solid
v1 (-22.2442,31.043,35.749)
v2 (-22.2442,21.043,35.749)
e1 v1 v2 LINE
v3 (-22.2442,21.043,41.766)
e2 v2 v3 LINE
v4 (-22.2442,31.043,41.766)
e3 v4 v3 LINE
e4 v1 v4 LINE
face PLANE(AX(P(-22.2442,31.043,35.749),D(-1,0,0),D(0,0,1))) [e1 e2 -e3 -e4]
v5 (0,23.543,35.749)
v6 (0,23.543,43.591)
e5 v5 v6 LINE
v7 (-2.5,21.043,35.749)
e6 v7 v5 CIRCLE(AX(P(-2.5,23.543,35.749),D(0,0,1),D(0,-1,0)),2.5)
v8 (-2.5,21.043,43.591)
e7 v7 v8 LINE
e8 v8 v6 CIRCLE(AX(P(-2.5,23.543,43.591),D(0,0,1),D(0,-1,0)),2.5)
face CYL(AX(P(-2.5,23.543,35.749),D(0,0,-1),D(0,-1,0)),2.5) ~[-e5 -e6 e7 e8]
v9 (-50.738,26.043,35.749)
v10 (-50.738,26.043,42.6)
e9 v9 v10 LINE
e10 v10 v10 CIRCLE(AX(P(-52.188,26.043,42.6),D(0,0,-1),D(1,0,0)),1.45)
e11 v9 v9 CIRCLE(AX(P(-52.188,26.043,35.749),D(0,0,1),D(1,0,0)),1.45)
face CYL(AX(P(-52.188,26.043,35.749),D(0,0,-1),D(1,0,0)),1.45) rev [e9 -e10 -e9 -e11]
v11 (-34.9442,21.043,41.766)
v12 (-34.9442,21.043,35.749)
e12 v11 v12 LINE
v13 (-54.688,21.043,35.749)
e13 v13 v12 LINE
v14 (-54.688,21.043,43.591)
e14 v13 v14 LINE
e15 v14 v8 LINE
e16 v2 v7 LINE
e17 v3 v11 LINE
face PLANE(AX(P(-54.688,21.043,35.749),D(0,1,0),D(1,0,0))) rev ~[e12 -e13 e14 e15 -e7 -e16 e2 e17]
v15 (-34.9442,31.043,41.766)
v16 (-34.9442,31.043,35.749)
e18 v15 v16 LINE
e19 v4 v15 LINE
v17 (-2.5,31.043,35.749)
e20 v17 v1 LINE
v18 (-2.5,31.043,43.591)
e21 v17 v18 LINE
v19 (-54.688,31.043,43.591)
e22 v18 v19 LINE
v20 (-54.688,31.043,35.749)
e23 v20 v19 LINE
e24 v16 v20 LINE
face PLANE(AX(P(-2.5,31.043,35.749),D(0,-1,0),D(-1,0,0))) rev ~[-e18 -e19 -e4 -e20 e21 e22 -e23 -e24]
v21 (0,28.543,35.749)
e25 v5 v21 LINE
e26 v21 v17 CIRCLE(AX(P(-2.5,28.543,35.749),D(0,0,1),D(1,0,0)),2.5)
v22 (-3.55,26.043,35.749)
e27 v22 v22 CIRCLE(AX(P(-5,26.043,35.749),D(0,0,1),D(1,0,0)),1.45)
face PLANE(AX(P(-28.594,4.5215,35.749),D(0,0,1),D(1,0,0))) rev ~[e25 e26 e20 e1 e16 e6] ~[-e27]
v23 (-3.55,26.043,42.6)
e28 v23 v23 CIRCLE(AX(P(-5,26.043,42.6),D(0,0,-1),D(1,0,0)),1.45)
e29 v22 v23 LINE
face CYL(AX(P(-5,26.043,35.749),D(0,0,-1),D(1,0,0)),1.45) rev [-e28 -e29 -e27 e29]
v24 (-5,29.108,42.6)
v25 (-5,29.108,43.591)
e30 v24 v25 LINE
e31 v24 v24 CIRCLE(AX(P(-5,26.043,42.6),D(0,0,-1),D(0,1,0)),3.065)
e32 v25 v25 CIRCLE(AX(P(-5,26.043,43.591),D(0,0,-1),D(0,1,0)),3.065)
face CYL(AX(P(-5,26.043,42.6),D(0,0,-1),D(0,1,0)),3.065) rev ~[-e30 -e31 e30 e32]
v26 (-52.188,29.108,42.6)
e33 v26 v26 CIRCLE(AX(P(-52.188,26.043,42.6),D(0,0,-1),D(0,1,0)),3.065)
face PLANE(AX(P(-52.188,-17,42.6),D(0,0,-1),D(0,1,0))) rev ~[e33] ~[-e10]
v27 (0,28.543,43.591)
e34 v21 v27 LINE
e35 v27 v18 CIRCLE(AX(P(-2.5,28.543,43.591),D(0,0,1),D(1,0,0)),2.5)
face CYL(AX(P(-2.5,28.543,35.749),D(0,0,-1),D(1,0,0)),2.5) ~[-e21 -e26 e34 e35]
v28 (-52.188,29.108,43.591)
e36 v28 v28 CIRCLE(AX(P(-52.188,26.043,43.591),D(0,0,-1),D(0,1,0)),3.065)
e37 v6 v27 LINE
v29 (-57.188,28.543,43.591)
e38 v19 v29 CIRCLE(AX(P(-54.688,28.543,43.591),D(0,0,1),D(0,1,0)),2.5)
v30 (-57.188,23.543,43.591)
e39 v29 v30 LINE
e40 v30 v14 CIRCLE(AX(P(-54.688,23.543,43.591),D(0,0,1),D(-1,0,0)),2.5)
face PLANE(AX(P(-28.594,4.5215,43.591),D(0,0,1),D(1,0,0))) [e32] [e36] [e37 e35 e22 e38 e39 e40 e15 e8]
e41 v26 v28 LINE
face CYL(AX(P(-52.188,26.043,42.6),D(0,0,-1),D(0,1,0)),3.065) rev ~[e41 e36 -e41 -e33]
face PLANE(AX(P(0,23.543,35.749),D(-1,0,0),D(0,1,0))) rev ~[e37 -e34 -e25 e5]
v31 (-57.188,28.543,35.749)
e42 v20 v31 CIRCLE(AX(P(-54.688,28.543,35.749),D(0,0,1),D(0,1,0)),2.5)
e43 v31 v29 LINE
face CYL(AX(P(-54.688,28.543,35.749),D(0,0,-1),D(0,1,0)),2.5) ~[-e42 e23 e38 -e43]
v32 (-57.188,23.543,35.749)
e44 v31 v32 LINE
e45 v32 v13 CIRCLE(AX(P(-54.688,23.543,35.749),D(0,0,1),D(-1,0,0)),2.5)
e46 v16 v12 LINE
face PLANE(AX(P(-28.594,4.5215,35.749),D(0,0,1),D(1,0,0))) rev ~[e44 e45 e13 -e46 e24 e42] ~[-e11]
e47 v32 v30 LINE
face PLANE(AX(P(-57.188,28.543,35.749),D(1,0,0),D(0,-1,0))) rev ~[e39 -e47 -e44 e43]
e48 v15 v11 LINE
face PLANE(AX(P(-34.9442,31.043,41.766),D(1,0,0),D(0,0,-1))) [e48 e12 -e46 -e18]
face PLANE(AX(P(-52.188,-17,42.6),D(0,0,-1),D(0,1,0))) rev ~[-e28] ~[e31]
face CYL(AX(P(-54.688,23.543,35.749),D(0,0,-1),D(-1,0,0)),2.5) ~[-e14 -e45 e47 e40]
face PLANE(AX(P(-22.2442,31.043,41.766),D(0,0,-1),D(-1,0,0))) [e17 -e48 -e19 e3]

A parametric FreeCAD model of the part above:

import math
import FreeCAD as App
import Part
import Sketcher
Q = App.Units.Quantity


def add_polygon(sketch, points):
    """Adds a closed chain of lines whose ends are joined by coincident constraints."""
    first, n = sketch.GeometryCount, len(points)
    for a, b in zip(points, points[1:] + points[:1]):
        sketch.addGeometry(Part.LineSegment(App.Vector(*a, 0), App.Vector(*b, 0)), False)
    for i in range(n):
        sketch.addConstraint(Sketcher.Constraint("Coincident", first + i, 2, first + (i + 1) % n, 1))

doc = App.newDocument("Part")
body = doc.addObject("PartDesign::Body", "Body")

sketch1 = body.newObject("Sketcher::SketchObject", "Sketch")
sketch1.AttachmentSupport = (doc.getObject("XY_Plane"), [""])
sketch1.MapMode = "FlatFace"
sketch1.AttachmentOffset = App.Placement(App.Vector(0, 0, 35.749), App.Rotation())
sketch1.addGeometry([
    Part.LineSegment(App.Vector(-2.5, 31, 0), App.Vector(-54.7, 31, 0)),
    Part.ArcOfCircle(Part.Circle(App.Vector(-54.7, 28.5, 0), App.Vector(0, 0, 1), 2.5), math.radians(90), math.radians(180)),
    Part.LineSegment(App.Vector(-57.2, 28.5, 0), App.Vector(-57.2, 23.5, 0)),
    Part.ArcOfCircle(Part.Circle(App.Vector(-54.7, 23.5, 0), App.Vector(0, 0, 1), 2.5), math.radians(180), math.radians(270)),
    Part.LineSegment(App.Vector(-54.7, 21, 0), App.Vector(-2.5, 21, 0)),
    Part.ArcOfCircle(Part.Circle(App.Vector(-2.5, 23.5, 0), App.Vector(0, 0, 1), 2.5), math.radians(-90), math.radians(0)),
    Part.LineSegment(App.Vector(0, 23.5, 0), App.Vector(0, 28.5, 0)),
    Part.ArcOfCircle(Part.Circle(App.Vector(-2.5, 28.5, 0), App.Vector(0, 0, 1), 2.5), math.radians(0), math.radians(90)),
    Part.Circle(App.Vector(-52.2, 26, 0), App.Vector(0, 0, 1), 1.4),
    Part.Circle(App.Vector(-5, 26, 0), App.Vector(0, 0, 1), 1.4),
], False)
sketch1.addConstraint([
    Sketcher.Constraint("Tangent", 0, 2, 1, 1),
    Sketcher.Constraint("Tangent", 1, 2, 2, 1),
    Sketcher.Constraint("Tangent", 2, 2, 3, 1),
    Sketcher.Constraint("Tangent", 3, 2, 4, 1),
    Sketcher.Constraint("Tangent", 4, 2, 5, 1),
    Sketcher.Constraint("Tangent", 5, 2, 6, 1),
    Sketcher.Constraint("Tangent", 6, 2, 7, 1),
    Sketcher.Constraint("Tangent", 7, 2, 0, 1),
    Sketcher.Constraint("Horizontal", 0),
    Sketcher.Constraint("Vertical", 2),
    Sketcher.Constraint("Horizontal", 4),
    Sketcher.Constraint("Vertical", 6),
    Sketcher.Constraint("Equal", 1, 3),
    Sketcher.Constraint("Equal", 3, 5),
    Sketcher.Constraint("Equal", 5, 7),
    Sketcher.Constraint("Equal", 8, 9),
    Sketcher.Constraint("PointOnObject", 5, 2, -2),
    Sketcher.Constraint("Horizontal", 8, 3, 9, 3),
    Sketcher.Constraint("Diameter", 8, Q("2.9 mm")),
    Sketcher.Constraint("Radius", 1, Q("2.5 mm")),
    Sketcher.Constraint("DistanceY", 2, 2, 2, 1, Q("5 mm")),
    Sketcher.Constraint("DistanceX", 9, 3, -1, 1, Q("5 mm")),
    Sketcher.Constraint("DistanceY", 8, 3, 0, 2, Q("5 mm")),
    Sketcher.Constraint("DistanceX", 1, 2, 8, 3, Q("5 mm")),
    Sketcher.Constraint("DistanceX", 0, 2, 0, 1, Q("52.188 mm")),
    Sketcher.Constraint("DistanceY", -1, 1, 1, 3, Q("28.543 mm")),
])
pad1 = body.newObject("PartDesign::Pad", "Pad")
pad1.Profile = sketch1
pad1.Length = 7.842

sketch2 = body.newObject("Sketcher::SketchObject", "Sketch001")
sketch2.AttachmentSupport = (doc.getObject("XZ_Plane"), [""])
sketch2.MapMode = "FlatFace"
sketch2.AttachmentOffset = App.Placement(App.Vector(0, 0, -31.043), App.Rotation())
add_polygon(sketch2, [(-22, 42), (-22, 36), (-35, 36), (-35, 42)])
sketch2.addConstraint([
    Sketcher.Constraint("Vertical", 0),
    Sketcher.Constraint("Horizontal", 1),
    Sketcher.Constraint("Vertical", 2),
    Sketcher.Constraint("Horizontal", 3),
    Sketcher.Constraint("DistanceX", 1, 2, 1, 1, Q("12.7 mm")),
    Sketcher.Constraint("DistanceY", 0, 2, 0, 1, Q("6.017 mm")),
    Sketcher.Constraint("DistanceY", -1, 1, 0, 2, Q("35.749 mm")),
    Sketcher.Constraint("DistanceX", 0, 2, -1, 1, Q("22.2442 mm")),
])
pocket1 = body.newObject("PartDesign::Pocket", "Pocket")
pocket1.Profile = sketch2
pocket1.Length = 12.908
pocket1.Reversed = True

sketch3 = body.newObject("Sketcher::SketchObject", "Sketch002")
sketch3.AttachmentSupport = (doc.getObject("XY_Plane"), [""])
sketch3.MapMode = "FlatFace"
sketch3.AttachmentOffset = App.Placement(App.Vector(0, 0, 42.6), App.Rotation())
sketch3.addGeometry([
    Part.Circle(App.Vector(-5, 26, 0), App.Vector(0, 0, 1), 3.1),
    Part.Circle(App.Vector(-52.2, 26, 0), App.Vector(0, 0, 1), 3.1),
], False)
sketch3.addConstraint([
    Sketcher.Constraint("Equal", 0, 1),
    Sketcher.Constraint("Horizontal", 0, 3, 1, 3),
    Sketcher.Constraint("Diameter", 0, Q("6.13 mm")),
    Sketcher.Constraint("DistanceX", 0, 3, -1, 1, Q("5 mm")),
    Sketcher.Constraint("DistanceY", -1, 1, 0, 3, Q("26.043 mm")),
    Sketcher.Constraint("DistanceX", 1, 3, -1, 1, Q("52.188 mm")),
])
pocket2 = body.newObject("PartDesign::Pocket", "Pocket001")
pocket2.Profile = sketch3
pocket2.Length = 12.908
pocket2.Reversed = True

doc.recompute()
